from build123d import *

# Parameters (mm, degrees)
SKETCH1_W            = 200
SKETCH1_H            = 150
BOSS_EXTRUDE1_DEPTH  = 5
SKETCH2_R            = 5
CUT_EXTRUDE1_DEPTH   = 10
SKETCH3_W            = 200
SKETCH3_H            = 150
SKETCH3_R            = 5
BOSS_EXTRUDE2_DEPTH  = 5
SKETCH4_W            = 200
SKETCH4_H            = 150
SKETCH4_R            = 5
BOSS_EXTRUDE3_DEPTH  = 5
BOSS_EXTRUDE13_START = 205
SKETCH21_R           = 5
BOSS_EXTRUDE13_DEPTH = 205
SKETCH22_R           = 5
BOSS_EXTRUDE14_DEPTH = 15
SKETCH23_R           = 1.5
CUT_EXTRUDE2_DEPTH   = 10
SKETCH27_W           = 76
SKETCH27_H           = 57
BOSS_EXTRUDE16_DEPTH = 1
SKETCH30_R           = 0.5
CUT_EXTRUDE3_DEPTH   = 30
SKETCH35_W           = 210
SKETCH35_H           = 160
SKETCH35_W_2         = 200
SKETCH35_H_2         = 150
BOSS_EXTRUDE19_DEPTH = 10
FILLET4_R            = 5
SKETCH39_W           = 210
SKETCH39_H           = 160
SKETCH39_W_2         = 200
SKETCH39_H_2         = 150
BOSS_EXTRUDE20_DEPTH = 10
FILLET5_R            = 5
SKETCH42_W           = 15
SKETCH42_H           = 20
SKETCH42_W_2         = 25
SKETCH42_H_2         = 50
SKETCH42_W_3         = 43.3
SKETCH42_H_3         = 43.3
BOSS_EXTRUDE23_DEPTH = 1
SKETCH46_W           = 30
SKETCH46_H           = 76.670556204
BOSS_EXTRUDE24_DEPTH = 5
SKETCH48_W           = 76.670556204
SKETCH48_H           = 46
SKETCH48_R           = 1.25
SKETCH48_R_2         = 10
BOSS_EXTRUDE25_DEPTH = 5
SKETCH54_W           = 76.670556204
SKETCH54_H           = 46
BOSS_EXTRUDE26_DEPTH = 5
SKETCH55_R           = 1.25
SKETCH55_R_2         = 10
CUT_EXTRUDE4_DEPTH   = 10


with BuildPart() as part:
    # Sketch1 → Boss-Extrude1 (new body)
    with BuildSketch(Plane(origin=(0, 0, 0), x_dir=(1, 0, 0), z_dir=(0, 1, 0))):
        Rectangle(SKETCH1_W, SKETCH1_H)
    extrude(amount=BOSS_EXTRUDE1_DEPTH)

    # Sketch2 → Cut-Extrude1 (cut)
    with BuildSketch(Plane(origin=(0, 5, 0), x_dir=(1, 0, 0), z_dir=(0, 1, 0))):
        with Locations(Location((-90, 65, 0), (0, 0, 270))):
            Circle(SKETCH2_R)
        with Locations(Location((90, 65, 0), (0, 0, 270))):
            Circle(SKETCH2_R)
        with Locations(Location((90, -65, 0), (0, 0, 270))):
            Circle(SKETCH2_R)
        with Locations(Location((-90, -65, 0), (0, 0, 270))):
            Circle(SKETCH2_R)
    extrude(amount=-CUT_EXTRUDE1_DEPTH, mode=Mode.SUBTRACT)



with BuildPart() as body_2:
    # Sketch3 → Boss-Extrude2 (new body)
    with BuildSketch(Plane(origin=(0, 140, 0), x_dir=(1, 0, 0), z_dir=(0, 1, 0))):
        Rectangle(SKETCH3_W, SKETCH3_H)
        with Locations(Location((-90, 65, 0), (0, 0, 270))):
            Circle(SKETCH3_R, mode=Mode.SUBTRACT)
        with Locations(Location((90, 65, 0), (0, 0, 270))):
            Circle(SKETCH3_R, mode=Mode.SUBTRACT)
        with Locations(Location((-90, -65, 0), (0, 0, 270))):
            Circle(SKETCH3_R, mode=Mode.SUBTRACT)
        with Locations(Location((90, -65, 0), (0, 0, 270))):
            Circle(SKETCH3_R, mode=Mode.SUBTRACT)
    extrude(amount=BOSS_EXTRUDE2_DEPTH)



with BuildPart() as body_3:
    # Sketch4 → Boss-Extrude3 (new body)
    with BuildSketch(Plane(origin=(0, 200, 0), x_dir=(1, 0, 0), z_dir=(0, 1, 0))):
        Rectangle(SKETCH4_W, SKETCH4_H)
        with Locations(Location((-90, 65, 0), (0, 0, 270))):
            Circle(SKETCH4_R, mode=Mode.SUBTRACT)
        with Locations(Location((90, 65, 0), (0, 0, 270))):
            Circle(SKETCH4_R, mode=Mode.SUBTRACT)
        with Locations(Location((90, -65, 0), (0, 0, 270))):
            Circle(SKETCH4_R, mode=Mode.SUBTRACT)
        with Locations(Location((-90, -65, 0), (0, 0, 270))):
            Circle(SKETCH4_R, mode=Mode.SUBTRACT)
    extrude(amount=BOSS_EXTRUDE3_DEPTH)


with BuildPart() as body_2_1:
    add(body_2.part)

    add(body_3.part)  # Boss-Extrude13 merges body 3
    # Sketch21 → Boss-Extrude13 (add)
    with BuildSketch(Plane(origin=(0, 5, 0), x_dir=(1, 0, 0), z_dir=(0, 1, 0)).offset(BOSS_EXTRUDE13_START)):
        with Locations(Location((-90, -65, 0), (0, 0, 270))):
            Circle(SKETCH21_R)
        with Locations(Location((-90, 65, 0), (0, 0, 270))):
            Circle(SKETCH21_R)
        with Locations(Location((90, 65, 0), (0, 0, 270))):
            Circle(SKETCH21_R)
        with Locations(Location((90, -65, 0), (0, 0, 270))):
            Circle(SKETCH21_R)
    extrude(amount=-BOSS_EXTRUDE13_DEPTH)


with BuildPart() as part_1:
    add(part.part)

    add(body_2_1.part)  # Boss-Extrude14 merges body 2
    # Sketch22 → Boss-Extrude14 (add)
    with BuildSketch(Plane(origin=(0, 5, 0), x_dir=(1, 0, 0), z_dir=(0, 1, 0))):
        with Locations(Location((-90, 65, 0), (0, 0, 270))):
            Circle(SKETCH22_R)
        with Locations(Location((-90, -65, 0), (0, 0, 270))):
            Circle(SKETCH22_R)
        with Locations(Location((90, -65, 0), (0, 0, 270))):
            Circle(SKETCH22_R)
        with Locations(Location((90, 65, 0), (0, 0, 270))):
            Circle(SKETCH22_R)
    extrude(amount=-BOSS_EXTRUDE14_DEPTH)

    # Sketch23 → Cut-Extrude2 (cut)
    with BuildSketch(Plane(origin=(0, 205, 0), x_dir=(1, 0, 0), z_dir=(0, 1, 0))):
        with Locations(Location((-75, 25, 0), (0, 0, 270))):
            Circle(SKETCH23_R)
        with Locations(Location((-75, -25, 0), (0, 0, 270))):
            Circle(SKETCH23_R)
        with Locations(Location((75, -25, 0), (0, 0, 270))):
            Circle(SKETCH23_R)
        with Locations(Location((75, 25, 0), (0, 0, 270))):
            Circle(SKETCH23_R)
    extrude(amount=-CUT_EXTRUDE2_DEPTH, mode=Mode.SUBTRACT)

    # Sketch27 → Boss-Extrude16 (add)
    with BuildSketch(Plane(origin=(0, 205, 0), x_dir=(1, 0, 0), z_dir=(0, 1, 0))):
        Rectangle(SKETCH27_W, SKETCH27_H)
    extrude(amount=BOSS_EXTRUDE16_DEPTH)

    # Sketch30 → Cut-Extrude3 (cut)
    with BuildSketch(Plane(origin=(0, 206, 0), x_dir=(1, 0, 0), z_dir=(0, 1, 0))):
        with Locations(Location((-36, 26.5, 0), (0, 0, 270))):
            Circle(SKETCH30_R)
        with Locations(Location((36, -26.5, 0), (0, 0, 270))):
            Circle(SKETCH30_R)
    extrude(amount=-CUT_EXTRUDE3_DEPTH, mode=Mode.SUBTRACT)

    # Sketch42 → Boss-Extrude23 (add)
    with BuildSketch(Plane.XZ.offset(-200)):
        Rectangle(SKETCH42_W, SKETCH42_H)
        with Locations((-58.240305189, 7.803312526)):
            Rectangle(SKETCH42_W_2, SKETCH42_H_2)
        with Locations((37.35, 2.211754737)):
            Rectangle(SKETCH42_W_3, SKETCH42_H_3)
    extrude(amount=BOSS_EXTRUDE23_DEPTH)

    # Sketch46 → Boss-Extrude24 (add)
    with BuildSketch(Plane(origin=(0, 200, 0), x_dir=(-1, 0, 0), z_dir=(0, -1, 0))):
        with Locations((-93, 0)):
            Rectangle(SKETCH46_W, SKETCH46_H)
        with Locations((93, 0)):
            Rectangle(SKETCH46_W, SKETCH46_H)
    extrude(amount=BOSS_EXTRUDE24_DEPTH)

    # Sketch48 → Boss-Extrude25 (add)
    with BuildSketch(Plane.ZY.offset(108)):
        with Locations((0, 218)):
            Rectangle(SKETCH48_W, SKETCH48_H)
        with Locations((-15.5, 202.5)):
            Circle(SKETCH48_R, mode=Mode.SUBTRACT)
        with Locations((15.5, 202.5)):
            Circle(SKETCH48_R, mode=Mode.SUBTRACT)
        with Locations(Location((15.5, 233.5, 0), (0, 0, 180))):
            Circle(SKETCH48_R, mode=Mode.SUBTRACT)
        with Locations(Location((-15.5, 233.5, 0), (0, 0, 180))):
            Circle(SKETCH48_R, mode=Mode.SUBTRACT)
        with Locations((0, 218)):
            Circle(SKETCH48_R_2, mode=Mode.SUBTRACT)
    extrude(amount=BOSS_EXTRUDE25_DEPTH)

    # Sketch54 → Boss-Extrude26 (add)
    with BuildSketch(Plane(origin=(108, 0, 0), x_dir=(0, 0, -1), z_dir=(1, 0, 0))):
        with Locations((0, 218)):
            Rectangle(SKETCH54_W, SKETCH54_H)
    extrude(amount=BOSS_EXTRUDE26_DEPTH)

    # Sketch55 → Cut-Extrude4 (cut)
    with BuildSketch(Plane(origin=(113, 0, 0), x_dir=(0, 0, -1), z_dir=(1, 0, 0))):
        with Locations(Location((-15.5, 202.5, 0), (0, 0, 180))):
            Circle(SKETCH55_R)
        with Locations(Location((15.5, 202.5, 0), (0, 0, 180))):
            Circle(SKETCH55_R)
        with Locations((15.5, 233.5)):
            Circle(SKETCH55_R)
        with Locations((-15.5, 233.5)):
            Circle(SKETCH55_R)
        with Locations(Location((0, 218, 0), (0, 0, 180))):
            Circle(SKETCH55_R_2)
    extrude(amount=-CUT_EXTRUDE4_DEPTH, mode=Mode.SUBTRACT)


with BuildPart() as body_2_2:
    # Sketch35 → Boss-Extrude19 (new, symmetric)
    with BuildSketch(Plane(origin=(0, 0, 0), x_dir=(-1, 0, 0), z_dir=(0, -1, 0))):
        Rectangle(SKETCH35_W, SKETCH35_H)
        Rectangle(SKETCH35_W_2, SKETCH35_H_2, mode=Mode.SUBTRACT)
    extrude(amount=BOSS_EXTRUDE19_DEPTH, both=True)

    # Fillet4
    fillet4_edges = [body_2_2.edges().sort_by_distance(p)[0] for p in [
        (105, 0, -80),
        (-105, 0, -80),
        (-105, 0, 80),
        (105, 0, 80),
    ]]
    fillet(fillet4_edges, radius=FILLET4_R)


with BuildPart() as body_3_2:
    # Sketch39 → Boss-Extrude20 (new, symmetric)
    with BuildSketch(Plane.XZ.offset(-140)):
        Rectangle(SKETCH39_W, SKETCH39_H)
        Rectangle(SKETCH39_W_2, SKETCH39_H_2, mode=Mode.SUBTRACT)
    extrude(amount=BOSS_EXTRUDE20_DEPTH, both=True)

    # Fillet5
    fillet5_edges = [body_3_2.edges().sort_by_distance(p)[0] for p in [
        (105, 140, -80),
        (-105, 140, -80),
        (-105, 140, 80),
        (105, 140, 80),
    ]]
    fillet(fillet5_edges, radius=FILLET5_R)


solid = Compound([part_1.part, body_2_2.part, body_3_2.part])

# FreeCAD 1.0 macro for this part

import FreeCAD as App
import Part
import Sketcher

V = App.Vector


def edges_at(feature, points):
    """Names of the edges that pass closest to the given points."""
    edges = feature.Shape.Edges
    near = lambda p: min(range(len(edges)), key=lambda i: edges[i].distToShape(Part.Vertex(*p))[0])
    return sorted({f"Edge{near(p) + 1}" for p in points})

doc = App.newDocument("Part")
params = doc.addObject("Spreadsheet::Sheet", "Params")
for row, (alias, value) in enumerate([
    ("sketch1_width", "200 mm"),
    ("sketch1_height", "150 mm"),
    ("pad1_length", "5 mm"),
    ("sketch2_diameter", "10 mm"),
    ("pocket1_length", "10 mm"),
    ("sketch3_diameter", "10 mm"),
    ("sketch3_width", "200 mm"),
    ("sketch3_height", "150 mm"),
    ("pad2_length", "5 mm"),
    ("sketch4_diameter", "10 mm"),
    ("sketch4_width", "200 mm"),
    ("sketch4_height", "150 mm"),
    ("pad3_length", "5 mm"),
    ("sketch5_diameter", "10 mm"),
    ("pad4_length", "205 mm"),
    ("sketch6_diameter", "10 mm"),
    ("pad5_length", "15 mm"),
    ("sketch7_diameter", "3 mm"),
    ("pocket2_length", "10 mm"),
    ("sketch8_width", "76 mm"),
    ("sketch8_height", "57 mm"),
    ("pad6_length", "1 mm"),
    ("sketch9_diameter", "1 mm"),
    ("pocket3_length", "30 mm"),
    ("sketch10_width", "15 mm"),
    ("sketch10_width2", "25 mm"),
    ("sketch10_height", "20 mm"),
    ("sketch10_height2", "50 mm"),
    ("sketch10_width3", "43.3 mm"),
    ("pad7_length", "1 mm"),
    ("sketch11_width", "30 mm"),
    ("pad8_length", "5 mm"),
    ("sketch12_diameter", "20 mm"),
    ("sketch12_diameter2", "2.5 mm"),
    ("sketch12_width", "46 mm"),
    ("pad9_length", "5 mm"),
    ("sketch13_width", "46 mm"),
    ("pad10_length", "5 mm"),
    ("sketch14_diameter", "20 mm"),
    ("sketch14_diameter2", "2.5 mm"),
    ("pocket4_length", "10 mm"),
    ("sketch15_width", "210 mm"),
    ("sketch15_width2", "200 mm"),
    ("sketch15_height", "160 mm"),
    ("sketch15_height2", "150 mm"),
    ("pad11_length", "20 mm"),
    ("fillet_radius", "5 mm"),
    ("sketch16_width", "210 mm"),
    ("sketch16_width2", "200 mm"),
    ("sketch16_height", "160 mm"),
    ("sketch16_height2", "150 mm"),
    ("pad12_length", "20 mm"),
    ("fillet2_radius", "5 mm"),
], start=1):
    params.set(f"A{row}", alias)
    params.set(f"B{row}", "=" + value)
    params.setAlias(f"B{row}", alias)

body = doc.addObject("PartDesign::Body", "Body")

sketch1 = doc.addObject("Sketcher::SketchObject", "Sketch")
body.addObject(sketch1)
sketch1.AttachmentSupport = (doc.XZ_Plane, [""])
sketch1.MapMode = "FlatFace"
sketch1.addGeometry([
    Part.LineSegment(V(-100, -75, 0), V(-100, 75, 0)),
    Part.LineSegment(V(-100, 75, 0), V(100, 75, 0)),
    Part.LineSegment(V(100, 75, 0), V(100, -75, 0)),
    Part.LineSegment(V(100, -75, 0), V(-100, -75, 0)),
], False)
sketch1.addConstraint([
    Sketcher.Constraint("Coincident", 0, 2, 1, 1),
    Sketcher.Constraint("Coincident", 1, 2, 2, 1),
    Sketcher.Constraint("Coincident", 2, 2, 3, 1),
    Sketcher.Constraint("Coincident", 3, 2, 0, 1),
    Sketcher.Constraint("Vertical", 0),
    Sketcher.Constraint("Horizontal", 1),
    Sketcher.Constraint("Vertical", 2),
    Sketcher.Constraint("Horizontal", 3),
    Sketcher.Constraint("Symmetric", 0, 2, 2, 2, -1, 1),
    Sketcher.Constraint("DistanceX", 1, 1, 1, 2, 200.0),
    Sketcher.Constraint("DistanceY", 0, 1, 0, 2, 150.0),
])
sketch1.setExpression("Constraints[9]", "Params.sketch1_width")
sketch1.setExpression("Constraints[10]", "Params.sketch1_height")
pad1 = doc.addObject("PartDesign::Pad", "Pad")
body.addObject(pad1)
pad1.Profile = sketch1
pad1.setExpression("Length", "Params.pad1_length")
pad1.Reversed = True

sketch2 = doc.addObject("Sketcher::SketchObject", "Sketch001")
body.addObject(sketch2)
sketch2.AttachmentSupport = (doc.XZ_Plane, [""])
sketch2.MapMode = "FlatFace"
sketch2.AttachmentOffset = App.Placement(V(0, 0, -5), App.Rotation())
sketch2.addGeometry([
    Part.Circle(V(-90, -65, 0), V(0, 0, 1), 5),
    Part.Circle(V(90, -65, 0), V(0, 0, 1), 5),
    Part.Circle(V(90, 65, 0), V(0, 0, 1), 5),
    Part.Circle(V(-90, 65, 0), V(0, 0, 1), 5),
], False)
sketch2.addConstraint([
    Sketcher.Constraint("Equal", 0, 1),
    Sketcher.Constraint("Equal", 1, 2),
    Sketcher.Constraint("Equal", 2, 3),
    Sketcher.Constraint("Symmetric", 0, 3, 2, 3, -1, 1),
    Sketcher.Constraint("Symmetric", 1, 3, 3, 3, -1, 1),
    Sketcher.Constraint("Symmetric", 0, 3, 1, 3, -2),
    Sketcher.Constraint("Diameter", 0, 10.0),
    Sketcher.Constraint("DistanceX", 0, 3, -1, 1, 90.0),
    Sketcher.Constraint("DistanceY", 0, 3, -1, 1, 65.0),
])
sketch2.setExpression("Constraints[6]", "Params.sketch2_diameter")
pocket1 = doc.addObject("PartDesign::Pocket", "Pocket")
body.addObject(pocket1)
pocket1.Profile = sketch2
pocket1.setExpression("Length", "Params.pocket1_length")
pocket1.Reversed = True
body2 = doc.addObject("PartDesign::Body", "Body001")

sketch3 = doc.addObject("Sketcher::SketchObject", "Sketch002")
body2.addObject(sketch3)
sketch3.AttachmentSupport = (doc.getObject("XZ_Plane001"), [""])
sketch3.MapMode = "FlatFace"
sketch3.AttachmentOffset = App.Placement(V(0, 0, -140), App.Rotation())
sketch3.addGeometry([
    Part.LineSegment(V(-100, -75, 0), V(-100, 75, 0)),
    Part.LineSegment(V(-100, 75, 0), V(100, 75, 0)),
    Part.LineSegment(V(100, 75, 0), V(100, -75, 0)),
    Part.LineSegment(V(100, -75, 0), V(-100, -75, 0)),
    Part.Circle(V(-90, 65, 0), V(0, 0, 1), 5),
    Part.Circle(V(90, 65, 0), V(0, 0, 1), 5),
    Part.Circle(V(-90, -65, 0), V(0, 0, 1), 5),
    Part.Circle(V(90, -65, 0), V(0, 0, 1), 5),
], False)
sketch3.addConstraint([
    Sketcher.Constraint("Coincident", 0, 2, 1, 1),
    Sketcher.Constraint("Coincident", 1, 2, 2, 1),
    Sketcher.Constraint("Coincident", 2, 2, 3, 1),
    Sketcher.Constraint("Coincident", 3, 2, 0, 1),
    Sketcher.Constraint("Vertical", 0),
    Sketcher.Constraint("Horizontal", 1),
    Sketcher.Constraint("Vertical", 2),
    Sketcher.Constraint("Horizontal", 3),
    Sketcher.Constraint("Equal", 4, 5),
    Sketcher.Constraint("Equal", 5, 6),
    Sketcher.Constraint("Equal", 6, 7),
    Sketcher.Constraint("Symmetric", 5, 3, 6, 3, -1, 1),
    Sketcher.Constraint("Symmetric", 4, 3, 7, 3, -1, 1),
    Sketcher.Constraint("Symmetric", 0, 2, 2, 2, -1, 1),
    Sketcher.Constraint("Symmetric", 4, 3, 5, 3, -2),
    Sketcher.Constraint("Diameter", 4, 10.0),
    Sketcher.Constraint("DistanceX", 1, 1, 1, 2, 200.0),
    Sketcher.Constraint("DistanceY", 0, 1, 0, 2, 150.0),
    Sketcher.Constraint("DistanceX", 4, 3, -1, 1, 90.0),
    Sketcher.Constraint("DistanceY", -1, 1, 4, 3, 65.0),
])
sketch3.setExpression("Constraints[15]", "Params.sketch3_diameter")
sketch3.setExpression("Constraints[16]", "Params.sketch3_width")
sketch3.setExpression("Constraints[17]", "Params.sketch3_height")
pad2 = doc.addObject("PartDesign::Pad", "Pad001")
body2.addObject(pad2)
pad2.Profile = sketch3
pad2.setExpression("Length", "Params.pad2_length")
pad2.Reversed = True
body3 = doc.addObject("PartDesign::Body", "Body002")

sketch4 = doc.addObject("Sketcher::SketchObject", "Sketch003")
body3.addObject(sketch4)
sketch4.AttachmentSupport = (doc.getObject("XZ_Plane002"), [""])
sketch4.MapMode = "FlatFace"
sketch4.AttachmentOffset = App.Placement(V(0, 0, -200), App.Rotation())
sketch4.addGeometry([
    Part.LineSegment(V(-100, -75, 0), V(-100, 75, 0)),
    Part.LineSegment(V(-100, 75, 0), V(100, 75, 0)),
    Part.LineSegment(V(100, 75, 0), V(100, -75, 0)),
    Part.LineSegment(V(100, -75, 0), V(-100, -75, 0)),
    Part.Circle(V(-90, 65, 0), V(0, 0, 1), 5),
    Part.Circle(V(90, 65, 0), V(0, 0, 1), 5),
    Part.Circle(V(-90, -65, 0), V(0, 0, 1), 5),
    Part.Circle(V(90, -65, 0), V(0, 0, 1), 5),
], False)
sketch4.addConstraint([
    Sketcher.Constraint("Coincident", 0, 2, 1, 1),
    Sketcher.Constraint("Coincident", 1, 2, 2, 1),
    Sketcher.Constraint("Coincident", 2, 2, 3, 1),
    Sketcher.Constraint("Coincident", 3, 2, 0, 1),
    Sketcher.Constraint("Vertical", 0),
    Sketcher.Constraint("Horizontal", 1),
    Sketcher.Constraint("Vertical", 2),
    Sketcher.Constraint("Horizontal", 3),
    Sketcher.Constraint("Equal", 4, 5),
    Sketcher.Constraint("Equal", 5, 6),
    Sketcher.Constraint("Equal", 6, 7),
    Sketcher.Constraint("Symmetric", 5, 3, 6, 3, -1, 1),
    Sketcher.Constraint("Symmetric", 4, 3, 7, 3, -1, 1),
    Sketcher.Constraint("Symmetric", 0, 2, 2, 2, -1, 1),
    Sketcher.Constraint("Symmetric", 4, 3, 5, 3, -2),
    Sketcher.Constraint("Diameter", 4, 10.0),
    Sketcher.Constraint("DistanceX", 1, 1, 1, 2, 200.0),
    Sketcher.Constraint("DistanceY", 0, 1, 0, 2, 150.0),
    Sketcher.Constraint("DistanceX", 4, 3, -1, 1, 90.0),
    Sketcher.Constraint("DistanceY", -1, 1, 4, 3, 65.0),
])
sketch4.setExpression("Constraints[15]", "Params.sketch4_diameter")
sketch4.setExpression("Constraints[16]", "Params.sketch4_width")
sketch4.setExpression("Constraints[17]", "Params.sketch4_height")
pad3 = doc.addObject("PartDesign::Pad", "Pad002")
body3.addObject(pad3)
pad3.Profile = sketch4
pad3.setExpression("Length", "Params.pad3_length")
pad3.Reversed = True
body2.AllowCompound = True
doc.recompute()

boolean = doc.addObject("PartDesign::Boolean", "Boolean")
body2.addObject(boolean)
boolean.Type = "Fuse"
boolean.addObjects([body3])

sketch5 = doc.addObject("Sketcher::SketchObject", "Sketch004")
body2.addObject(sketch5)
sketch5.AttachmentSupport = (doc.getObject("XZ_Plane001"), [""])
sketch5.MapMode = "FlatFace"
sketch5.AttachmentOffset = App.Placement(V(0, 0, -210), App.Rotation())
sketch5.addGeometry([
    Part.Circle(V(-90, 65, 0), V(0, 0, 1), 5),
    Part.Circle(V(-90, -65, 0), V(0, 0, 1), 5),
    Part.Circle(V(90, -65, 0), V(0, 0, 1), 5),
    Part.Circle(V(90, 65, 0), V(0, 0, 1), 5),
], False)
sketch5.addConstraint([
    Sketcher.Constraint("Equal", 0, 1),
    Sketcher.Constraint("Equal", 1, 2),
    Sketcher.Constraint("Equal", 2, 3),
    Sketcher.Constraint("Symmetric", 0, 3, 2, 3, -1, 1),
    Sketcher.Constraint("Symmetric", 1, 3, 3, 3, -1, 1),
    Sketcher.Constraint("Symmetric", 1, 3, 2, 3, -2),
    Sketcher.Constraint("Diameter", 0, 10.0),
    Sketcher.Constraint("DistanceX", 0, 3, -1, 1, 90.0),
    Sketcher.Constraint("DistanceY", -1, 1, 0, 3, 65.0),
])
sketch5.setExpression("Constraints[6]", "Params.sketch5_diameter")
pad4 = doc.addObject("PartDesign::Pad", "Pad003")
body2.addObject(pad4)
pad4.Profile = sketch5
pad4.setExpression("Length", "Params.pad4_length")
body.AllowCompound = True
doc.recompute()

boolean2 = doc.addObject("PartDesign::Boolean", "Boolean001")
body.addObject(boolean2)
boolean2.Type = "Fuse"
boolean2.addObjects([body2])

sketch6 = doc.addObject("Sketcher::SketchObject", "Sketch005")
body.addObject(sketch6)
sketch6.AttachmentSupport = (doc.XZ_Plane, [""])
sketch6.MapMode = "FlatFace"
sketch6.AttachmentOffset = App.Placement(V(0, 0, -5), App.Rotation())
sketch6.addGeometry([
    Part.Circle(V(-90, -65, 0), V(0, 0, 1), 5),
    Part.Circle(V(-90, 65, 0), V(0, 0, 1), 5),
    Part.Circle(V(90, 65, 0), V(0, 0, 1), 5),
    Part.Circle(V(90, -65, 0), V(0, 0, 1), 5),
], False)
sketch6.addConstraint([
    Sketcher.Constraint("Equal", 0, 1),
    Sketcher.Constraint("Equal", 1, 2),
    Sketcher.Constraint("Equal", 2, 3),
    Sketcher.Constraint("Symmetric", 0, 3, 2, 3, -1, 1),
    Sketcher.Constraint("Symmetric", 1, 3, 3, 3, -1, 1),
    Sketcher.Constraint("Symmetric", 1, 3, 2, 3, -2),
    Sketcher.Constraint("Diameter", 0, 10.0),
    Sketcher.Constraint("DistanceX", 0, 3, -1, 1, 90.0),
    Sketcher.Constraint("DistanceY", 0, 3, -1, 1, 65.0),
])
sketch6.setExpression("Constraints[6]", "Params.sketch6_diameter")
pad5 = doc.addObject("PartDesign::Pad", "Pad004")
body.addObject(pad5)
pad5.Profile = sketch6
pad5.setExpression("Length", "Params.pad5_length")

sketch7 = doc.addObject("Sketcher::SketchObject", "Sketch006")
body.addObject(sketch7)
sketch7.AttachmentSupport = (doc.XZ_Plane, [""])
sketch7.MapMode = "FlatFace"
sketch7.AttachmentOffset = App.Placement(V(0, 0, -205), App.Rotation())
sketch7.addGeometry([
    Part.Circle(V(-75, -25, 0), V(0, 0, 1), 1.5),
    Part.Circle(V(-75, 25, 0), V(0, 0, 1), 1.5),
    Part.Circle(V(75, 25, 0), V(0, 0, 1), 1.5),
    Part.Circle(V(75, -25, 0), V(0, 0, 1), 1.5),
], False)
sketch7.addConstraint([
    Sketcher.Constraint("Equal", 0, 1),
    Sketcher.Constraint("Equal", 1, 2),
    Sketcher.Constraint("Equal", 2, 3),
    Sketcher.Constraint("Symmetric", 0, 3, 2, 3, -1, 1),
    Sketcher.Constraint("Symmetric", 1, 3, 3, 3, -1, 1),
    Sketcher.Constraint("Symmetric", 1, 3, 2, 3, -2),
    Sketcher.Constraint("Diameter", 0, 3.0),
    Sketcher.Constraint("DistanceX", 0, 3, -1, 1, 75.0),
    Sketcher.Constraint("DistanceY", 0, 3, -1, 1, 25.0),
])
sketch7.setExpression("Constraints[6]", "Params.sketch7_diameter")
pocket2 = doc.addObject("PartDesign::Pocket", "Pocket001")
body.addObject(pocket2)
pocket2.Profile = sketch7
pocket2.setExpression("Length", "Params.pocket2_length")
pocket2.Reversed = True

sketch8 = doc.addObject("Sketcher::SketchObject", "Sketch007")
body.addObject(sketch8)
sketch8.AttachmentSupport = (doc.XZ_Plane, [""])
sketch8.MapMode = "FlatFace"
sketch8.AttachmentOffset = App.Placement(V(0, 0, -205), App.Rotation())
sketch8.addGeometry([
    Part.LineSegment(V(-38, -28, 0), V(-38, 28, 0)),
    Part.LineSegment(V(-38, 28, 0), V(38, 28, 0)),
    Part.LineSegment(V(38, 28, 0), V(38, -28, 0)),
    Part.LineSegment(V(38, -28, 0), V(-38, -28, 0)),
], False)
sketch8.addConstraint([
    Sketcher.Constraint("Coincident", 0, 2, 1, 1),
    Sketcher.Constraint("Coincident", 1, 2, 2, 1),
    Sketcher.Constraint("Coincident", 2, 2, 3, 1),
    Sketcher.Constraint("Coincident", 3, 2, 0, 1),
    Sketcher.Constraint("Vertical", 0),
    Sketcher.Constraint("Horizontal", 1),
    Sketcher.Constraint("Vertical", 2),
    Sketcher.Constraint("Horizontal", 3),
    Sketcher.Constraint("Symmetric", 0, 2, 2, 2, -1, 1),
    Sketcher.Constraint("DistanceX", 1, 1, 1, 2, 76.0),
    Sketcher.Constraint("DistanceY", 0, 1, 0, 2, 57.0),
])
sketch8.setExpression("Constraints[9]", "Params.sketch8_width")
sketch8.setExpression("Constraints[10]", "Params.sketch8_height")
pad6 = doc.addObject("PartDesign::Pad", "Pad005")
body.addObject(pad6)
pad6.Profile = sketch8
pad6.setExpression("Length", "Params.pad6_length")
pad6.Reversed = True

sketch9 = doc.addObject("Sketcher::SketchObject", "Sketch008")
body.addObject(sketch9)
sketch9.AttachmentSupport = (doc.XZ_Plane, [""])
sketch9.MapMode = "FlatFace"
sketch9.AttachmentOffset = App.Placement(V(0, 0, -206), App.Rotation())
sketch9.addGeometry([
    Part.Circle(V(-36, -26.5, 0), V(0, 0, 1), 0.5),
    Part.Circle(V(36, 26.5, 0), V(0, 0, 1), 0.5),
], False)
sketch9.addConstraint([
    Sketcher.Constraint("Equal", 0, 1),
    Sketcher.Constraint("Symmetric", 0, 3, 1, 3, -1, 1),
    Sketcher.Constraint("Diameter", 0, 1.0),
    Sketcher.Constraint("DistanceX", 0, 3, -1, 1, 36.0),
    Sketcher.Constraint("DistanceY", 0, 3, 1, 3, 53.0),
])
sketch9.setExpression("Constraints[2]", "Params.sketch9_diameter")
pocket3 = doc.addObject("PartDesign::Pocket", "Pocket002")
body.addObject(pocket3)
pocket3.Profile = sketch9
pocket3.setExpression("Length", "Params.pocket3_length")
pocket3.Reversed = True

sketch10 = doc.addObject("Sketcher::SketchObject", "Sketch009")
body.addObject(sketch10)
sketch10.AttachmentSupport = (doc.XZ_Plane, [""])
sketch10.MapMode = "FlatFace"
sketch10.AttachmentOffset = App.Placement(V(0, 0, -200), App.Rotation())
sketch10.addGeometry([
    Part.LineSegment(V(-8, 10, 0), V(-8, -10, 0)),
    Part.LineSegment(V(-8, -10, 0), V(8, -10, 0)),
    Part.LineSegment(V(8, -10, 0), V(8, 10, 0)),
    Part.LineSegment(V(8, 10, 0), V(-8, 10, 0)),
    Part.LineSegment(V(-71, 33, 0), V(-71, -17, 0)),
    Part.LineSegment(V(-71, -17, 0), V(-46, -17, 0)),
    Part.LineSegment(V(-46, -17, 0), V(-46, 33, 0)),
    Part.LineSegment(V(-46, 33, 0), V(-71, 33, 0)),
    Part.LineSegment(V(16, 24, 0), V(16, -19, 0)),
    Part.LineSegment(V(16, -19, 0), V(59, -19, 0)),
    Part.LineSegment(V(59, -19, 0), V(59, 24, 0)),
    Part.LineSegment(V(59, 24, 0), V(16, 24, 0)),
], False)
sketch10.addConstraint([
    Sketcher.Constraint("Coincident", 0, 2, 1, 1),
    Sketcher.Constraint("Coincident", 1, 2, 2, 1),
    Sketcher.Constraint("Coincident", 2, 2, 3, 1),
    Sketcher.Constraint("Coincident", 3, 2, 0, 1),
    Sketcher.Constraint("Coincident", 4, 2, 5, 1),
    Sketcher.Constraint("Coincident", 5, 2, 6, 1),
    Sketcher.Constraint("Coincident", 6, 2, 7, 1),
    Sketcher.Constraint("Coincident", 7, 2, 4, 1),
    Sketcher.Constraint("Coincident", 8, 2, 9, 1),
    Sketcher.Constraint("Coincident", 9, 2, 10, 1),
    Sketcher.Constraint("Coincident", 10, 2, 11, 1),
    Sketcher.Constraint("Coincident", 11, 2, 8, 1),
    Sketcher.Constraint("Vertical", 0),
    Sketcher.Constraint("Horizontal", 1),
    Sketcher.Constraint("Vertical", 2),
    Sketcher.Constraint("Horizontal", 3),
    Sketcher.Constraint("Vertical", 4),
    Sketcher.Constraint("Horizontal", 5),
    Sketcher.Constraint("Vertical", 6),
    Sketcher.Constraint("Horizontal", 7),
    Sketcher.Constraint("Vertical", 8),
    Sketcher.Constraint("Horizontal", 9),
    Sketcher.Constraint("Vertical", 10),
    Sketcher.Constraint("Horizontal", 11),
    Sketcher.Constraint("Symmetric", 0, 2, 2, 2, -1, 1),
    Sketcher.Constraint("Equal", 11, 8),
    Sketcher.Constraint("DistanceX", 1, 1, 1, 2, 15.0),
    Sketcher.Constraint("DistanceX", 5, 1, 5, 2, 25.0),
    Sketcher.Constraint("DistanceY", 0, 2, 0, 1, 20.0),
    Sketcher.Constraint("DistanceY", 4, 2, 4, 1, 50.0),
    Sketcher.Constraint("DistanceX", 9, 1, 9, 2, 43.3),
    Sketcher.Constraint("DistanceX", -1, 1, 9, 2, 59.0),
    Sketcher.Constraint("DistanceX", 4, 2, -1, 1, 70.740305),
    Sketcher.Constraint("DistanceY", 4, 2, -1, 1, 17.196687),
    Sketcher.Constraint("DistanceY", 8, 2, -1, 1, 19.438245),
])
sketch10.setExpression("Constraints[26]", "Params.sketch10_width")
sketch10.setExpression("Constraints[27]", "Params.sketch10_width2")
sketch10.setExpression("Constraints[28]", "Params.sketch10_height")
sketch10.setExpression("Constraints[29]", "Params.sketch10_height2")
sketch10.setExpression("Constraints[30]", "Params.sketch10_width3")
pad7 = doc.addObject("PartDesign::Pad", "Pad006")
body.addObject(pad7)
pad7.Profile = sketch10
pad7.setExpression("Length", "Params.pad7_length")

sketch11 = doc.addObject("Sketcher::SketchObject", "Sketch010")
body.addObject(sketch11)
sketch11.AttachmentSupport = (doc.XZ_Plane, [""])
sketch11.MapMode = "FlatFace"
sketch11.AttachmentOffset = App.Placement(V(0, 0, -200), App.Rotation())
sketch11.addGeometry([
    Part.LineSegment(V(108, -38, 0), V(108, 38, 0)),
    Part.LineSegment(V(108, 38, 0), V(78, 38, 0)),
    Part.LineSegment(V(78, 38, 0), V(78, -38, 0)),
    Part.LineSegment(V(78, -38, 0), V(108, -38, 0)),
    Part.LineSegment(V(-78, -38, 0), V(-78, 38, 0)),
    Part.LineSegment(V(-78, 38, 0), V(-108, 38, 0)),
    Part.LineSegment(V(-108, 38, 0), V(-108, -38, 0)),
    Part.LineSegment(V(-108, -38, 0), V(-78, -38, 0)),
], False)
sketch11.addConstraint([
    Sketcher.Constraint("Coincident", 0, 2, 1, 1),
    Sketcher.Constraint("Coincident", 1, 2, 2, 1),
    Sketcher.Constraint("Coincident", 2, 2, 3, 1),
    Sketcher.Constraint("Coincident", 3, 2, 0, 1),
    Sketcher.Constraint("Coincident", 4, 2, 5, 1),
    Sketcher.Constraint("Coincident", 5, 2, 6, 1),
    Sketcher.Constraint("Coincident", 6, 2, 7, 1),
    Sketcher.Constraint("Coincident", 7, 2, 4, 1),
    Sketcher.Constraint("Vertical", 0),
    Sketcher.Constraint("Horizontal", 1),
    Sketcher.Constraint("Vertical", 2),
    Sketcher.Constraint("Horizontal", 3),
    Sketcher.Constraint("Vertical", 4),
    Sketcher.Constraint("Horizontal", 5),
    Sketcher.Constraint("Vertical", 6),
    Sketcher.Constraint("Horizontal", 7),
    Sketcher.Constraint("Symmetric", 2, 2, 4, 2, -1, 1),
    Sketcher.Constraint("Symmetric", 0, 2, 6, 2, -1, 1),
    Sketcher.Constraint("Horizontal", 1, 2, 4, 2),
    Sketcher.Constraint("DistanceX", 1, 2, 1, 1, 30.0),
    Sketcher.Constraint("DistanceX", -1, 1, 0, 2, 108.0),
    Sketcher.Constraint("DistanceY", 0, 1, 0, 2, 76.670556),
])
sketch11.setExpression("Constraints[19]", "Params.sketch11_width")
pad8 = doc.addObject("PartDesign::Pad", "Pad007")
body.addObject(pad8)
pad8.Profile = sketch11
pad8.setExpression("Length", "Params.pad8_length")

sketch12 = doc.addObject("Sketcher::SketchObject", "Sketch011")
body.addObject(sketch12)
sketch12.AttachmentSupport = (doc.YZ_Plane, [""])
sketch12.MapMode = "FlatFace"
sketch12.AttachmentOffset = App.Placement(V(0, 0, -108), App.Rotation())
sketch12.addGeometry([
    Part.LineSegment(V(241, -38.3, 0), V(195, -38.3, 0)),
    Part.LineSegment(V(195, -38.3, 0), V(195, 38.3, 0)),
    Part.LineSegment(V(195, 38.3, 0), V(241, 38.3, 0)),
    Part.LineSegment(V(241, 38.3, 0), V(241, -38.3, 0)),
    Part.Circle(V(202.5, -15.5, 0), V(0, 0, 1), 1.2),
    Part.Circle(V(202.5, 15.5, 0), V(0, 0, 1), 1.2),
    Part.Circle(V(233.5, -15.5, 0), V(0, 0, 1), 1.2),
    Part.Circle(V(218, 0, 0), V(0, 0, 1), 10),
    Part.Circle(V(233.5, 15.5, 0), V(0, 0, 1), 1.2),
], False)
sketch12.addConstraint([
    Sketcher.Constraint("Coincident", 0, 2, 1, 1),
    Sketcher.Constraint("Coincident", 1, 2, 2, 1),
    Sketcher.Constraint("Coincident", 2, 2, 3, 1),
    Sketcher.Constraint("Coincident", 3, 2, 0, 1),
    Sketcher.Constraint("Horizontal", 0),
    Sketcher.Constraint("Vertical", 1),
    Sketcher.Constraint("Horizontal", 2),
    Sketcher.Constraint("Vertical", 3),
    Sketcher.Constraint("Equal", 4, 5),
    Sketcher.Constraint("Equal", 5, 6),
    Sketcher.Constraint("Equal", 6, 8),
    Sketcher.Constraint("Symmetric", 4, 3, 5, 3, -1),
    Sketcher.Constraint("Symmetric", 6, 3, 8, 3, -1),
    Sketcher.Constraint("PointOnObject", 7, 3, -1),
    Sketcher.Constraint("Horizontal", 4, 3, 6, 3),
    Sketcher.Constraint("Diameter", 7, 20.0),
    Sketcher.Constraint("Diameter", 4, 2.5),
    Sketcher.Constraint("DistanceX", 0, 2, 0, 1, 46.0),
    Sketcher.Constraint("DistanceX", -1, 1, 7, 3, 218.0),
    Sketcher.Constraint("DistanceX", -1, 1, 0, 2, 195.0),
    Sketcher.Constraint("DistanceY", 4, 3, 5, 3, 31.0),
    Sketcher.Constraint("DistanceX", 4, 3, 6, 3, 31.0),
    Sketcher.Constraint("DistanceX", -1, 1, 4, 3, 202.5),
    Sketcher.Constraint("DistanceY", 1, 1, 1, 2, 76.670556),
    Sketcher.Constraint("DistanceY", 0, 2, -1, 1, 38.335278),
])
sketch12.setExpression("Constraints[15]", "Params.sketch12_diameter")
sketch12.setExpression("Constraints[16]", "Params.sketch12_diameter2")
sketch12.setExpression("Constraints[17]", "Params.sketch12_width")
pad9 = doc.addObject("PartDesign::Pad", "Pad008")
body.addObject(pad9)
pad9.Profile = sketch12
pad9.setExpression("Length", "Params.pad9_length")
pad9.Reversed = True

sketch13 = doc.addObject("Sketcher::SketchObject", "Sketch012")
body.addObject(sketch13)
sketch13.AttachmentSupport = (doc.YZ_Plane, [""])
sketch13.MapMode = "FlatFace"
sketch13.AttachmentOffset = App.Placement(V(0, 0, 108), App.Rotation())
sketch13.addGeometry([
    Part.LineSegment(V(241, 38, 0), V(195, 38, 0)),
    Part.LineSegment(V(195, 38, 0), V(195, -38, 0)),
    Part.LineSegment(V(195, -38, 0), V(241, -38, 0)),
    Part.LineSegment(V(241, -38, 0), V(241, 38, 0)),
], False)
sketch13.addConstraint([
    Sketcher.Constraint("Coincident", 0, 2, 1, 1),
    Sketcher.Constraint("Coincident", 1, 2, 2, 1),
    Sketcher.Constraint("Coincident", 2, 2, 3, 1),
    Sketcher.Constraint("Coincident", 3, 2, 0, 1),
    Sketcher.Constraint("Horizontal", 0),
    Sketcher.Constraint("Vertical", 1),
    Sketcher.Constraint("Horizontal", 2),
    Sketcher.Constraint("Vertical", 3),
    Sketcher.Constraint("DistanceX", 0, 2, 0, 1, 46.0),
    Sketcher.Constraint("DistanceX", -1, 1, 0, 2, 195.0),
    Sketcher.Constraint("DistanceY", 1, 2, 1, 1, 76.670556),
    Sketcher.Constraint("DistanceY", -1, 1, 0, 2, 38.335278),
])
sketch13.setExpression("Constraints[8]", "Params.sketch13_width")
pad10 = doc.addObject("PartDesign::Pad", "Pad009")
body.addObject(pad10)
pad10.Profile = sketch13
pad10.setExpression("Length", "Params.pad10_length")

sketch14 = doc.addObject("Sketcher::SketchObject", "Sketch013")
body.addObject(sketch14)
sketch14.AttachmentSupport = (doc.YZ_Plane, [""])
sketch14.MapMode = "FlatFace"
sketch14.AttachmentOffset = App.Placement(V(0, 0, 113), App.Rotation())
sketch14.addGeometry([
    Part.Circle(V(202.5, 15.5, 0), V(0, 0, 1), 1.2),
    Part.Circle(V(202.5, -15.5, 0), V(0, 0, 1), 1.2),
    Part.Circle(V(233.5, -15.5, 0), V(0, 0, 1), 1.2),
    Part.Circle(V(233.5, 15.5, 0), V(0, 0, 1), 1.2),
    Part.Circle(V(218, 0, 0), V(0, 0, 1), 10),
], False)
sketch14.addConstraint([
    Sketcher.Constraint("Equal", 0, 1),
    Sketcher.Constraint("Equal", 1, 2),
    Sketcher.Constraint("Equal", 2, 3),
    Sketcher.Constraint("Symmetric", 0, 3, 1, 3, -1),
    Sketcher.Constraint("Symmetric", 2, 3, 3, 3, -1),
    Sketcher.Constraint("PointOnObject", 4, 3, -1),
    Sketcher.Constraint("Horizontal", 1, 3, 2, 3),
    Sketcher.Constraint("Diameter", 4, 20.0),
    Sketcher.Constraint("Diameter", 0, 2.5),
    Sketcher.Constraint("DistanceX", -1, 1, 4, 3, 218.0),
    Sketcher.Constraint("DistanceY", 1, 3, 0, 3, 31.0),
    Sketcher.Constraint("DistanceX", 1, 3, 2, 3, 31.0),
    Sketcher.Constraint("DistanceX", -1, 1, 0, 3, 202.5),
])
sketch14.setExpression("Constraints[7]", "Params.sketch14_diameter")
sketch14.setExpression("Constraints[8]", "Params.sketch14_diameter2")
pocket4 = doc.addObject("PartDesign::Pocket", "Pocket003")
body.addObject(pocket4)
pocket4.Profile = sketch14
pocket4.setExpression("Length", "Params.pocket4_length")
body4 = doc.addObject("PartDesign::Body", "Body003")

sketch15 = doc.addObject("Sketcher::SketchObject", "Sketch014")
body4.addObject(sketch15)
sketch15.AttachmentSupport = (doc.getObject("XZ_Plane003"), [""])
sketch15.MapMode = "FlatFace"
sketch15.addGeometry([
    Part.LineSegment(V(105, -80, 0), V(105, 80, 0)),
    Part.LineSegment(V(105, 80, 0), V(-105, 80, 0)),
    Part.LineSegment(V(-105, 80, 0), V(-105, -80, 0)),
    Part.LineSegment(V(-105, -80, 0), V(105, -80, 0)),
    Part.LineSegment(V(-100, 75, 0), V(100, 75, 0)),
    Part.LineSegment(V(100, 75, 0), V(100, -75, 0)),
    Part.LineSegment(V(100, -75, 0), V(-100, -75, 0)),
    Part.LineSegment(V(-100, -75, 0), V(-100, 75, 0)),
], False)
sketch15.addConstraint([
    Sketcher.Constraint("Coincident", 0, 2, 1, 1),
    Sketcher.Constraint("Coincident", 1, 2, 2, 1),
    Sketcher.Constraint("Coincident", 2, 2, 3, 1),
    Sketcher.Constraint("Coincident", 3, 2, 0, 1),
    Sketcher.Constraint("Coincident", 4, 2, 5, 1),
    Sketcher.Constraint("Coincident", 5, 2, 6, 1),
    Sketcher.Constraint("Coincident", 6, 2, 7, 1),
    Sketcher.Constraint("Coincident", 7, 2, 4, 1),
    Sketcher.Constraint("Vertical", 0),
    Sketcher.Constraint("Horizontal", 1),
    Sketcher.Constraint("Vertical", 2),
    Sketcher.Constraint("Horizontal", 3),
    Sketcher.Constraint("Horizontal", 4),
    Sketcher.Constraint("Vertical", 5),
    Sketcher.Constraint("Horizontal", 6),
    Sketcher.Constraint("Vertical", 7),
    Sketcher.Constraint("Symmetric", 0, 2, 2, 2, -1, 1),
    Sketcher.Constraint("Symmetric", 4, 2, 6, 2, -1, 1),
    Sketcher.Constraint("DistanceX", 1, 2, 1, 1, 210.0),
    Sketcher.Constraint("DistanceX", 4, 1, 4, 2, 200.0),
    Sketcher.Constraint("DistanceY", 0, 1, 0, 2, 160.0),
    Sketcher.Constraint("DistanceY", 5, 2, 5, 1, 150.0),
])
sketch15.setExpression("Constraints[18]", "Params.sketch15_width")
sketch15.setExpression("Constraints[19]", "Params.sketch15_width2")
sketch15.setExpression("Constraints[20]", "Params.sketch15_height")
sketch15.setExpression("Constraints[21]", "Params.sketch15_height2")
pad11 = doc.addObject("PartDesign::Pad", "Pad010")
body4.addObject(pad11)
pad11.Profile = sketch15
pad11.setExpression("Length", "Params.pad11_length")
pad11.Midplane = True
doc.recompute()

fillet = doc.addObject("PartDesign::Fillet", "Fillet")
body4.addObject(fillet)
fillet.Base = (pad11, edges_at(pad11, [
    (105, 0, -80),
    (-105, 0, -80),
    (-105, 0, 80),
    (105, 0, 80),
]))
fillet.setExpression("Radius", "Params.fillet_radius")
body5 = doc.addObject("PartDesign::Body", "Body004")

sketch16 = doc.addObject("Sketcher::SketchObject", "Sketch015")
body5.addObject(sketch16)
sketch16.AttachmentSupport = (doc.getObject("XZ_Plane004"), [""])
sketch16.MapMode = "FlatFace"
sketch16.AttachmentOffset = App.Placement(V(0, 0, -140), App.Rotation())
sketch16.addGeometry([
    Part.LineSegment(V(-105, 80, 0), V(-105, -80, 0)),
    Part.LineSegment(V(-105, -80, 0), V(105, -80, 0)),
    Part.LineSegment(V(105, -80, 0), V(105, 80, 0)),
    Part.LineSegment(V(105, 80, 0), V(-105, 80, 0)),
    Part.LineSegment(V(100, -75, 0), V(-100, -75, 0)),
    Part.LineSegment(V(-100, -75, 0), V(-100, 75, 0)),
    Part.LineSegment(V(-100, 75, 0), V(100, 75, 0)),
    Part.LineSegment(V(100, 75, 0), V(100, -75, 0)),
], False)
sketch16.addConstraint([
    Sketcher.Constraint("Coincident", 0, 2, 1, 1),
    Sketcher.Constraint("Coincident", 1, 2, 2, 1),
    Sketcher.Constraint("Coincident", 2, 2, 3, 1),
    Sketcher.Constraint("Coincident", 3, 2, 0, 1),
    Sketcher.Constraint("Coincident", 4, 2, 5, 1),
    Sketcher.Constraint("Coincident", 5, 2, 6, 1),
    Sketcher.Constraint("Coincident", 6, 2, 7, 1),
    Sketcher.Constraint("Coincident", 7, 2, 4, 1),
    Sketcher.Constraint("Vertical", 0),
    Sketcher.Constraint("Horizontal", 1),
    Sketcher.Constraint("Vertical", 2),
    Sketcher.Constraint("Horizontal", 3),
    Sketcher.Constraint("Horizontal", 4),
    Sketcher.Constraint("Vertical", 5),
    Sketcher.Constraint("Horizontal", 6),
    Sketcher.Constraint("Vertical", 7),
    Sketcher.Constraint("Symmetric", 0, 2, 2, 2, -1, 1),
    Sketcher.Constraint("Symmetric", 4, 2, 6, 2, -1, 1),
    Sketcher.Constraint("DistanceX", 1, 1, 1, 2, 210.0),
    Sketcher.Constraint("DistanceX", 4, 2, 4, 1, 200.0),
    Sketcher.Constraint("DistanceY", 0, 2, 0, 1, 160.0),
    Sketcher.Constraint("DistanceY", 5, 1, 5, 2, 150.0),
])
sketch16.setExpression("Constraints[18]", "Params.sketch16_width")
sketch16.setExpression("Constraints[19]", "Params.sketch16_width2")
sketch16.setExpression("Constraints[20]", "Params.sketch16_height")
sketch16.setExpression("Constraints[21]", "Params.sketch16_height2")
pad12 = doc.addObject("PartDesign::Pad", "Pad011")
body5.addObject(pad12)
pad12.Profile = sketch16
pad12.setExpression("Length", "Params.pad12_length")
pad12.Midplane = True
doc.recompute()

fillet2 = doc.addObject("PartDesign::Fillet", "Fillet001")
body5.addObject(fillet2)
fillet2.Base = (pad12, edges_at(pad12, [
    (105, 140, -80),
    (-105, 140, -80),
    (-105, 140, 80),
    (105, 140, 80),
]))
fillet2.setExpression("Radius", "Params.fillet2_radius")

doc.recompute()
